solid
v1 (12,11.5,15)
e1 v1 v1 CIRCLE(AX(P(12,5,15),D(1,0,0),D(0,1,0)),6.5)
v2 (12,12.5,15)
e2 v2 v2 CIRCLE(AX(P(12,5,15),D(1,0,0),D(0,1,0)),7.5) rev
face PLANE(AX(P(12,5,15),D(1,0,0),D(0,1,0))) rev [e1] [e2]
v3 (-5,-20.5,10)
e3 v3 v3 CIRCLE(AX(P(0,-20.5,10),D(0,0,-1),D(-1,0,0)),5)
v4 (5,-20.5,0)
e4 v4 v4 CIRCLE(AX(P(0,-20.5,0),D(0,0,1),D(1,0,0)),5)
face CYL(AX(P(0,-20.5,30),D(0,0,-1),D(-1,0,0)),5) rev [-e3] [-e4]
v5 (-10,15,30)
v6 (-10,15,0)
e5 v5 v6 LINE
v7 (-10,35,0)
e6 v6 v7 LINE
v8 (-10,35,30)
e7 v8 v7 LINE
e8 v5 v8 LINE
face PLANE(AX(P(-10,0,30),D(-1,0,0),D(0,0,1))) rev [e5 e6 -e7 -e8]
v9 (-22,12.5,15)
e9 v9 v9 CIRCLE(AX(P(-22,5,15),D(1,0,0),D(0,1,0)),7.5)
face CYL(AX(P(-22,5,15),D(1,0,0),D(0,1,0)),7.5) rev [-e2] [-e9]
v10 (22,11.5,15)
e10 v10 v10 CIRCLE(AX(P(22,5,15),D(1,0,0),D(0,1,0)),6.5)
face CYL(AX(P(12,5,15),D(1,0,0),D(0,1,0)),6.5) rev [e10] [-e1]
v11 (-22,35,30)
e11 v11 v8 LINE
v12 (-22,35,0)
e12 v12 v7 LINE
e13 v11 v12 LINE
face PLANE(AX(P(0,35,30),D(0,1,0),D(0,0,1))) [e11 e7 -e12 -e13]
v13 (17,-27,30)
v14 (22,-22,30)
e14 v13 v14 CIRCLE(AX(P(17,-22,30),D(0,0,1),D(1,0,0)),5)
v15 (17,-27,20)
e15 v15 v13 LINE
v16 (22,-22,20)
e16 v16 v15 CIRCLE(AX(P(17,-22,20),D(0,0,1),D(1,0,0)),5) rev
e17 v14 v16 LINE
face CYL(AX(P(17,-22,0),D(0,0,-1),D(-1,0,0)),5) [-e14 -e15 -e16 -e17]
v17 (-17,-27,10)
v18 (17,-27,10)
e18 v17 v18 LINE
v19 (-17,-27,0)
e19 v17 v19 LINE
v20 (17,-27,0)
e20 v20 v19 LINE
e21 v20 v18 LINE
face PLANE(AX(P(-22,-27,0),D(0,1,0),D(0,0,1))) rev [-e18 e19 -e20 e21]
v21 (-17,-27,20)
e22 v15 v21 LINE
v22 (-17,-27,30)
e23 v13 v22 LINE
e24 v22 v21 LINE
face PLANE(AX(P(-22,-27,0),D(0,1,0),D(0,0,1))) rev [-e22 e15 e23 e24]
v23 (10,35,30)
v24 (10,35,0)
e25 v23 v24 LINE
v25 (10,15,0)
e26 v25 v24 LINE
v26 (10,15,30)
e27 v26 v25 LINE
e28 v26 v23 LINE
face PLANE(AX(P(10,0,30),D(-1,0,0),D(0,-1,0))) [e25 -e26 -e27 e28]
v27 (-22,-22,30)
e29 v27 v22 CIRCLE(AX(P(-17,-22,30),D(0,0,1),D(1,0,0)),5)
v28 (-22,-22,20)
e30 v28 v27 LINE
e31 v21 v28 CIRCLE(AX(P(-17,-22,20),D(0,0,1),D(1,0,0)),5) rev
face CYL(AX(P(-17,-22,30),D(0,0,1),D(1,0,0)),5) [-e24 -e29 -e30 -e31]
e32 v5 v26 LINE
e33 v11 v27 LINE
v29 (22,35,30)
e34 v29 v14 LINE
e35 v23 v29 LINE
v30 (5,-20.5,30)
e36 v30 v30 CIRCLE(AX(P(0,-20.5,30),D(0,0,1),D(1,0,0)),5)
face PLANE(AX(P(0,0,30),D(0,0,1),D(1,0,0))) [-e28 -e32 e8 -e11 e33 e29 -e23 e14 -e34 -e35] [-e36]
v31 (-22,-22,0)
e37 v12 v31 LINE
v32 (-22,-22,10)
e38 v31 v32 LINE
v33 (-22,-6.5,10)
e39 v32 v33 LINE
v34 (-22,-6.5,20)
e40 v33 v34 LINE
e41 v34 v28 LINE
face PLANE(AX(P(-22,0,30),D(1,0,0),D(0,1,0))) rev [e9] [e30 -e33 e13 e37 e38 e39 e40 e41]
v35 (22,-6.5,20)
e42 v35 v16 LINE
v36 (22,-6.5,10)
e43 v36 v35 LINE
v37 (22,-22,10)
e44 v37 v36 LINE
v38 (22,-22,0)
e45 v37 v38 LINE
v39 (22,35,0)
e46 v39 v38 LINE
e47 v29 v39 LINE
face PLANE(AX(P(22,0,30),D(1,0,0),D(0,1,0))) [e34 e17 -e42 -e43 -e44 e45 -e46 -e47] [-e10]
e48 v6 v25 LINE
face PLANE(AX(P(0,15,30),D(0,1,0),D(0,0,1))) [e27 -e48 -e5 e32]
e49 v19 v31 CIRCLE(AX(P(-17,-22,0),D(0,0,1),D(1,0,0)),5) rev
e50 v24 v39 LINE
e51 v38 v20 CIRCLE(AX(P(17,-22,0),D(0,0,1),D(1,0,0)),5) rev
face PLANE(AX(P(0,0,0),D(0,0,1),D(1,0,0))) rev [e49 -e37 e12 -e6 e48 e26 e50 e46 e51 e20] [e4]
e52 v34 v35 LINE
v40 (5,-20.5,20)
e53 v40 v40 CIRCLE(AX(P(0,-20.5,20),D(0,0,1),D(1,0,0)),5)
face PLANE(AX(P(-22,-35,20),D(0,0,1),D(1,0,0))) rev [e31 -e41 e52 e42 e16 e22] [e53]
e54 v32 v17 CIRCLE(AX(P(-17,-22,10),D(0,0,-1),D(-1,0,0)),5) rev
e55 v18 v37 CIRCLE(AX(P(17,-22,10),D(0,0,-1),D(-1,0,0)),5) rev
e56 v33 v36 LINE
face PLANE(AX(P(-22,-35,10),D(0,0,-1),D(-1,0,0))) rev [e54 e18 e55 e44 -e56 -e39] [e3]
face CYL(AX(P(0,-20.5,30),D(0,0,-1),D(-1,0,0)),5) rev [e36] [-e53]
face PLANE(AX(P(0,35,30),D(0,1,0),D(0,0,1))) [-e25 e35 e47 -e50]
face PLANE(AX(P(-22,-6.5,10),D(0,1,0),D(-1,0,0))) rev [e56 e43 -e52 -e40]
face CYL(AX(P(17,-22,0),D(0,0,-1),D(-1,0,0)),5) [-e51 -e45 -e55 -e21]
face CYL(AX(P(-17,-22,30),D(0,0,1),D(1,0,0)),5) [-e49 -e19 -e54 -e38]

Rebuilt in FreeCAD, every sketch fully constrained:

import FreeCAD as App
import Part
import Sketcher

V = App.Vector


def edges_at(feature, points):
    """Names of the edges that pass closest to the given points."""
    edges = feature.Shape.Edges
    near = lambda p: min(range(len(edges)), key=lambda i: edges[i].distToShape(Part.Vertex(*p))[0])
    return sorted({f"Edge{near(p) + 1}" for p in points})


def add_polygon(sketch, points):
    """Adds a closed chain of lines whose ends are joined by coincident constraints."""
    first, n = sketch.GeometryCount, len(points)
    for a, b in zip(points, points[1:] + points[:1]):
        sketch.addGeometry(Part.LineSegment(App.Vector(*a, 0), App.Vector(*b, 0)), False)
    for i in range(n):
        sketch.addConstraint(Sketcher.Constraint("Coincident", first + i, 2, first + (i + 1) % n, 1))

doc = App.newDocument("Part")
body = doc.addObject("PartDesign::Body", "Body")

# Sketch on XY plane
sketch1 = body.newObject("Sketcher::SketchObject", "Sketch")
sketch1.AttachmentSupport = (doc.getObject("XY_Plane"), [""])
sketch1.MapMode = "FlatFace"
add_polygon(sketch1, [(-10, 35), (-22, 35), (-22, -35), (22, -35), (22, 35), (10, 35), (10, 15), (-10, 15)])  # lines 0-7
sketch1.addGeometry(Part.Circle(V(0, -20.5, 0), V(0, 0, 1), 5), False)  # 8
sketch1.addConstraint([
    Sketcher.Constraint("Horizontal", 0),
    Sketcher.Constraint("Vertical", 1),
    Sketcher.Constraint("Horizontal", 2),
    Sketcher.Constraint("Vertical", 3),
    Sketcher.Constraint("Horizontal", 4),
    Sketcher.Constraint("Vertical", 5),
    Sketcher.Constraint("Horizontal", 6),
    Sketcher.Constraint("Vertical", 7),
    Sketcher.Constraint("Symmetric", 0, 2, 2, 2, -1, 1),
    Sketcher.Constraint("Symmetric", 4, 2, 7, 2, -2),
    Sketcher.Constraint("PointOnObject", 8, 3, -2),
    Sketcher.Constraint("Equal", 6, 5),
    Sketcher.Constraint("Diameter", 8, 10.0),
    Sketcher.Constraint("DistanceX", 0, 2, 0, 1, 12.0),
    Sketcher.Constraint("DistanceX", 2, 1, 2, 2, 44.0),
    Sketcher.Constraint("DistanceY", 1, 2, 1, 1, 70.0),
    Sketcher.Constraint("DistanceY", 8, 3, -1, 1, 20.5),
])
pad1 = body.newObject("PartDesign::Pad", "Pad")
pad1.Profile = sketch1
pad1.Length = 30

# Sketch on YZ plane
sketch2 = body.newObject("Sketcher::SketchObject", "Sketch001")
sketch2.AttachmentSupport = (doc.getObject("YZ_Plane"), [""])
sketch2.MapMode = "FlatFace"
sketch2.AttachmentOffset = App.Placement(V(0, 0, 22), App.Rotation())
sketch2.addGeometry(Part.Circle(V(5, 15, 0), V(0, 0, 1), 7.5), False)
sketch2.addConstraint([
    Sketcher.Constraint("Diameter", 0, 15.0),
    Sketcher.Constraint("DistanceX", -1, 1, 0, 3, 5.0),
    Sketcher.Constraint("DistanceY", -1, 1, 0, 3, 15.0),
])
pocket1 = body.newObject("PartDesign::Pocket", "Pocket")
pocket1.Profile = sketch2
pocket1.Type = "ThroughAll"

# Sketch on YZ plane
sketch3 = body.newObject("Sketcher::SketchObject", "Sketch002")
sketch3.AttachmentSupport = (doc.getObject("YZ_Plane"), [""])
sketch3.MapMode = "FlatFace"
sketch3.AttachmentOffset = App.Placement(V(0, 0, 22), App.Rotation())
add_polygon(sketch3, [(-6.5, 20), (-35, 20), (-35, 10), (-6.5, 10)])  # lines 0-3
sketch3.addConstraint([
    Sketcher.Constraint("Horizontal", 0),
    Sketcher.Constraint("Vertical", 1),
    Sketcher.Constraint("Horizontal", 2),
    Sketcher.Constraint("Vertical", 3),
    Sketcher.Constraint("DistanceY", 1, 2, 1, 1, 10.0),
    Sketcher.Constraint("DistanceX", 0, 2, 0, 1, 28.5),
    Sketcher.Constraint("DistanceX", 0, 2, -1, 1, 35.0),
    Sketcher.Constraint("DistanceY", -1, 1, 0, 2, 20.0),
])
pocket2 = body.newObject("PartDesign::Pocket", "Pocket001")
pocket2.Profile = sketch3
pocket2.Type = "ThroughAll"

# Sketch on XY plane
sketch4 = body.newObject("Sketcher::SketchObject", "Sketch003")
sketch4.AttachmentSupport = (doc.getObject("XY_Plane"), [""])
sketch4.MapMode = "FlatFace"
sketch4.AttachmentOffset = App.Placement(V(0, 0, 30), App.Rotation())
add_polygon(sketch4, [(-22, -27), (-22, -35), (22, -35), (22, -27)])  # lines 0-3
sketch4.addConstraint([
    Sketcher.Constraint("Vertical", 0),
    Sketcher.Constraint("Horizontal", 1),
    Sketcher.Constraint("Vertical", 2),
    Sketcher.Constraint("Horizontal", 3),
    Sketcher.Constraint("DistanceX", 1, 1, 1, 2, 44.0),
    Sketcher.Constraint("DistanceY", 0, 2, 0, 1, 8.0),
    Sketcher.Constraint("DistanceX", 0, 2, -1, 1, 22.0),
    Sketcher.Constraint("DistanceY", 0, 2, -1, 1, 35.0),
])
pocket3 = body.newObject("PartDesign::Pocket", "Pocket002")
pocket3.Profile = sketch4
pocket3.Type = "ThroughAll"
doc.recompute()

fillet = body.newObject("PartDesign::Fillet", "Fillet")
fillet.Base = (pocket3, edges_at(pocket3, [
    (-22, -27, 25),
    (-22, -27, 5),
    (22, -27, 25),
    (22, -27, 5),
]))
fillet.Radius = 5

# Sketch on YZ plane
sketch5 = body.newObject("Sketcher::SketchObject", "Sketch004")
sketch5.AttachmentSupport = (doc.getObject("YZ_Plane"), [""])
sketch5.MapMode = "FlatFace"
sketch5.AttachmentOffset = App.Placement(V(0, 0, 22), App.Rotation())
sketch5.addGeometry([
    Part.Circle(V(5, 15, 0), V(0, 0, 1), 7.5),
    Part.Circle(V(5, 15, 0), V(0, 0, 1), 6.5),
], False)
sketch5.addConstraint([
    Sketcher.Constraint("Coincident", 1, 3, 0, 3),
    Sketcher.Constraint("Diameter", 0, 15.0),
    Sketcher.Constraint("Diameter", 1, 13.0),
    Sketcher.Constraint("DistanceX", -1, 1, 0, 3, 5.0),
    Sketcher.Constraint("DistanceY", -1, 1, 0, 3, 15.0),
])
pad2 = body.newObject("PartDesign::Pad", "Pad001")
pad2.Profile = sketch5
pad2.Length = 10
pad2.Reversed = True

doc.recompute()
